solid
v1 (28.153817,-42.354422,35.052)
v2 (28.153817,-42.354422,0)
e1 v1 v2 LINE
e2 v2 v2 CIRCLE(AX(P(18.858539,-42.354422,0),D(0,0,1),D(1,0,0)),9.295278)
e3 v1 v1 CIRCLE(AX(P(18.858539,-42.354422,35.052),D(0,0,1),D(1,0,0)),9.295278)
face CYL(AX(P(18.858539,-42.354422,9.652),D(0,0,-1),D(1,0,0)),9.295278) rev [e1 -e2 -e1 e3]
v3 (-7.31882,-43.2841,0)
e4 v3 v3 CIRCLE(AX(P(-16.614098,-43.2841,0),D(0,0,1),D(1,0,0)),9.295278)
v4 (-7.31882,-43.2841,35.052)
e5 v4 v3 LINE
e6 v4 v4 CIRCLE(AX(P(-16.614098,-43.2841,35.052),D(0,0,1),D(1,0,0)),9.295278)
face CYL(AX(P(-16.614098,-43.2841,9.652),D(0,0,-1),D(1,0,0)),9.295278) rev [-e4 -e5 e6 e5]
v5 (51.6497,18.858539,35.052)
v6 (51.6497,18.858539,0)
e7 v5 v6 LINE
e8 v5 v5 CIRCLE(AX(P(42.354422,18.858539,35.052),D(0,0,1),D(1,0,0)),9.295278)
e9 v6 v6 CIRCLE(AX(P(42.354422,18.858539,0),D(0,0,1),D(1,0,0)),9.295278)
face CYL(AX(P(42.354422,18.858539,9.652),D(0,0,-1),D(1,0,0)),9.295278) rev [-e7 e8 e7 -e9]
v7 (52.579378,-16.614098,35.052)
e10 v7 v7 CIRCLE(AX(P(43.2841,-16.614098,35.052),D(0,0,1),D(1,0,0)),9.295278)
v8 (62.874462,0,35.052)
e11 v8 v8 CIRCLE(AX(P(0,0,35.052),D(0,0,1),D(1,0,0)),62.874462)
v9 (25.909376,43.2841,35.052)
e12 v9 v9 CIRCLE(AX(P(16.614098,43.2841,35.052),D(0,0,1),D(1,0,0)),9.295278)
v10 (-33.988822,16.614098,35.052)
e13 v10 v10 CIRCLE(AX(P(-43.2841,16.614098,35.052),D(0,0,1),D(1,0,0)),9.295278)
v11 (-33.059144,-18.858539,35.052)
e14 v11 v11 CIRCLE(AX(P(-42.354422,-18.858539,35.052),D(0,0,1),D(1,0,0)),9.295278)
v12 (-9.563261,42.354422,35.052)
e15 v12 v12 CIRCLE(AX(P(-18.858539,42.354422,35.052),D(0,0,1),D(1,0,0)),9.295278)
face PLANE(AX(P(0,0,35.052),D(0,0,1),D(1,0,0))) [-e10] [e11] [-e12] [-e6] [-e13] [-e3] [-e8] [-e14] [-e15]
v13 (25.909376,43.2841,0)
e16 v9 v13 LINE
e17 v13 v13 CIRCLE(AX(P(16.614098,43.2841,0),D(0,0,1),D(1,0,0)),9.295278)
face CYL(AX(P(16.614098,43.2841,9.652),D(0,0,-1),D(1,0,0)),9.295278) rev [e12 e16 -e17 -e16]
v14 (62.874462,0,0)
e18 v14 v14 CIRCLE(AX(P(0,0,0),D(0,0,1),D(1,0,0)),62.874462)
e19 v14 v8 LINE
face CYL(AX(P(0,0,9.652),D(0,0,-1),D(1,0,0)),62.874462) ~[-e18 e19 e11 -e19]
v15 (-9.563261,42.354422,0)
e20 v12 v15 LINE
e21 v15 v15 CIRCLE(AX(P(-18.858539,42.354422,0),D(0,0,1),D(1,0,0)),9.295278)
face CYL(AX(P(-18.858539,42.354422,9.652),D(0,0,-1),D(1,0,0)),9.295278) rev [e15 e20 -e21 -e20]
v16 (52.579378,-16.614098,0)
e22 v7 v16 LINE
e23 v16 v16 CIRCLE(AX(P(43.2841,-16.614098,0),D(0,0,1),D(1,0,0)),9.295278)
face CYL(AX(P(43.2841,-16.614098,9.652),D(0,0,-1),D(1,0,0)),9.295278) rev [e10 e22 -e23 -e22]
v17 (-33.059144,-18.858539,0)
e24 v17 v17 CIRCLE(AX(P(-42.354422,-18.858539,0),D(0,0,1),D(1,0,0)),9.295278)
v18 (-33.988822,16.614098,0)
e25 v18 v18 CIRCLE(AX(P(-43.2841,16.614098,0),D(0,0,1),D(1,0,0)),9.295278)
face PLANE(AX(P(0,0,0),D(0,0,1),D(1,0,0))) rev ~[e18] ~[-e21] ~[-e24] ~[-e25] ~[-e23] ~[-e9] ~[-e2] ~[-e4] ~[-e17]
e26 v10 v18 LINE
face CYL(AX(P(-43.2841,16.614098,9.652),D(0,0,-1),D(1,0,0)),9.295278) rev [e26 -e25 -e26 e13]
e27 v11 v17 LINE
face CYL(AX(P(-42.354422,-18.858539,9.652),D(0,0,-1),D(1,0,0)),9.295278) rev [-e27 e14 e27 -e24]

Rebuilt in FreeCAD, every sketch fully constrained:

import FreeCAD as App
import Part
import Sketcher
Q = App.Units.Quantity

doc = App.newDocument("Part")
body = doc.addObject("PartDesign::Body", "Body")

sketch1 = body.newObject("Sketcher::SketchObject", "Sketch")
sketch1.AttachmentSupport = (doc.getObject("XY_Plane"), [""])
sketch1.MapMode = "FlatFace"
sketch1.addGeometry([
    Part.Circle(App.Vector(0, 0, 0), App.Vector(0, 0, 1), 62.874462),
    Part.Circle(App.Vector(-16.614098, -43.2841, 0), App.Vector(0, 0, 1), 9.295278),
    Part.Circle(App.Vector(-42.354422, -18.858539, 0), App.Vector(0, 0, 1), 9.295278),
    Part.Circle(App.Vector(18.858539, -42.354422, 0), App.Vector(0, 0, 1), 9.295278),
    Part.Circle(App.Vector(43.2841, -16.614098, 0), App.Vector(0, 0, 1), 9.295278),
    Part.Circle(App.Vector(-43.2841, 16.614098, 0), App.Vector(0, 0, 1), 9.295278),
    Part.Circle(App.Vector(-18.858539, 42.354422, 0), App.Vector(0, 0, 1), 9.295278),
    Part.Circle(App.Vector(42.354422, 18.858539, 0), App.Vector(0, 0, 1), 9.295278),
    Part.Circle(App.Vector(16.614098, 43.2841, 0), App.Vector(0, 0, 1), 9.295278),
], False)
sketch1.addConstraint([
    Sketcher.Constraint("Coincident", 0, 3, -1, 1),
    Sketcher.Constraint("Equal", 1, 2),
    Sketcher.Constraint("Equal", 2, 3),
    Sketcher.Constraint("Equal", 3, 4),
    Sketcher.Constraint("Equal", 4, 5),
    Sketcher.Constraint("Equal", 5, 6),
    Sketcher.Constraint("Equal", 6, 7),
    Sketcher.Constraint("Equal", 7, 8),
    Sketcher.Constraint("Symmetric", 4, 3, 5, 3, -1, 1),
    Sketcher.Constraint("Symmetric", 3, 3, 6, 3, -1, 1),
    Sketcher.Constraint("Symmetric", 2, 3, 7, 3, -1, 1),
    Sketcher.Constraint("Symmetric", 1, 3, 8, 3, -1, 1),
    Sketcher.Constraint("DistanceY", 1, 3, 4, 3, Q("1.0500001 in")),
    Sketcher.Constraint("DistanceX", 5, 3, 1, 3, Q("1.0500001 in")),
    Sketcher.Constraint("Diameter", 0, Q("125.748924 mm")),
    Sketcher.Constraint("Diameter", 1, Q("18.590556 mm")),
    Sketcher.Constraint("DistanceY", 1, 3, -1, 1, Q("43.2841 mm")),
    Sketcher.Constraint("DistanceX", -1, 1, 4, 3, Q("43.2841 mm")),
    Sketcher.Constraint("DistanceY", 2, 3, -1, 1, Q("18.858539 mm")),
    Sketcher.Constraint("DistanceX", -1, 1, 3, 3, Q("18.858539 mm")),
    Sketcher.Constraint("DistanceY", 1, 3, 3, 3, Q("0.929678 mm")),
    Sketcher.Constraint("DistanceX", 2, 3, 3, 3, Q("61.212961 mm")),
])
pad1 = body.newObject("PartDesign::Pad", "Pad")
pad1.Profile = sketch1
pad1.Length = Q("0.38 in")

sketch2 = body.newObject("Sketcher::SketchObject", "Sketch001")
sketch2.AttachmentSupport = (doc.getObject("XY_Plane"), [""])
sketch2.MapMode = "FlatFace"
sketch2.AttachmentOffset = App.Placement(App.Vector(0, 0, 0.38 * 25.4), App.Rotation())
sketch2.addGeometry([
    Part.Circle(App.Vector(0, 0, 0), App.Vector(0, 0, 1), 62.874462),
    Part.Circle(App.Vector(-16.614098, -43.2841, 0), App.Vector(0, 0, 1), 9.295278),
    Part.Circle(App.Vector(-42.354422, -18.858539, 0), App.Vector(0, 0, 1), 9.295278),
    Part.Circle(App.Vector(18.858539, -42.354422, 0), App.Vector(0, 0, 1), 9.295278),
    Part.Circle(App.Vector(43.2841, -16.614098, 0), App.Vector(0, 0, 1), 9.295278),
    Part.Circle(App.Vector(-43.2841, 16.614098, 0), App.Vector(0, 0, 1), 9.295278),
    Part.Circle(App.Vector(-18.858539, 42.354422, 0), App.Vector(0, 0, 1), 9.295278),
    Part.Circle(App.Vector(42.354422, 18.858539, 0), App.Vector(0, 0, 1), 9.295278),
    Part.Circle(App.Vector(16.614098, 43.2841, 0), App.Vector(0, 0, 1), 9.295278),
], False)
sketch2.addConstraint([
    Sketcher.Constraint("Coincident", 0, 3, -1, 1),
    Sketcher.Constraint("Equal", 1, 2),
    Sketcher.Constraint("Equal", 2, 3),
    Sketcher.Constraint("Equal", 3, 4),
    Sketcher.Constraint("Equal", 4, 5),
    Sketcher.Constraint("Equal", 5, 6),
    Sketcher.Constraint("Equal", 6, 7),
    Sketcher.Constraint("Equal", 7, 8),
    Sketcher.Constraint("Symmetric", 4, 3, 5, 3, -1, 1),
    Sketcher.Constraint("Symmetric", 3, 3, 6, 3, -1, 1),
    Sketcher.Constraint("Symmetric", 2, 3, 7, 3, -1, 1),
    Sketcher.Constraint("Symmetric", 1, 3, 8, 3, -1, 1),
    Sketcher.Constraint("DistanceY", 1, 3, 4, 3, Q("1.0500001 in")),
    Sketcher.Constraint("DistanceX", 5, 3, 1, 3, Q("1.0500001 in")),
    Sketcher.Constraint("Diameter", 0, Q("125.748924 mm")),
    Sketcher.Constraint("Diameter", 1, Q("18.590556 mm")),
    Sketcher.Constraint("DistanceY", 1, 3, -1, 1, Q("43.2841 mm")),
    Sketcher.Constraint("DistanceX", -1, 1, 4, 3, Q("43.2841 mm")),
    Sketcher.Constraint("DistanceY", 2, 3, -1, 1, Q("18.858539 mm")),
    Sketcher.Constraint("DistanceX", -1, 1, 3, 3, Q("18.858539 mm")),
    Sketcher.Constraint("DistanceY", 1, 3, 3, 3, Q("0.929678 mm")),
    Sketcher.Constraint("DistanceX", 2, 3, 3, 3, Q("61.212961 mm")),
])
pad2 = body.newObject("PartDesign::Pad", "Pad001")
pad2.Profile = sketch2
pad2.Length = Q("1 in")

doc.recompute()
